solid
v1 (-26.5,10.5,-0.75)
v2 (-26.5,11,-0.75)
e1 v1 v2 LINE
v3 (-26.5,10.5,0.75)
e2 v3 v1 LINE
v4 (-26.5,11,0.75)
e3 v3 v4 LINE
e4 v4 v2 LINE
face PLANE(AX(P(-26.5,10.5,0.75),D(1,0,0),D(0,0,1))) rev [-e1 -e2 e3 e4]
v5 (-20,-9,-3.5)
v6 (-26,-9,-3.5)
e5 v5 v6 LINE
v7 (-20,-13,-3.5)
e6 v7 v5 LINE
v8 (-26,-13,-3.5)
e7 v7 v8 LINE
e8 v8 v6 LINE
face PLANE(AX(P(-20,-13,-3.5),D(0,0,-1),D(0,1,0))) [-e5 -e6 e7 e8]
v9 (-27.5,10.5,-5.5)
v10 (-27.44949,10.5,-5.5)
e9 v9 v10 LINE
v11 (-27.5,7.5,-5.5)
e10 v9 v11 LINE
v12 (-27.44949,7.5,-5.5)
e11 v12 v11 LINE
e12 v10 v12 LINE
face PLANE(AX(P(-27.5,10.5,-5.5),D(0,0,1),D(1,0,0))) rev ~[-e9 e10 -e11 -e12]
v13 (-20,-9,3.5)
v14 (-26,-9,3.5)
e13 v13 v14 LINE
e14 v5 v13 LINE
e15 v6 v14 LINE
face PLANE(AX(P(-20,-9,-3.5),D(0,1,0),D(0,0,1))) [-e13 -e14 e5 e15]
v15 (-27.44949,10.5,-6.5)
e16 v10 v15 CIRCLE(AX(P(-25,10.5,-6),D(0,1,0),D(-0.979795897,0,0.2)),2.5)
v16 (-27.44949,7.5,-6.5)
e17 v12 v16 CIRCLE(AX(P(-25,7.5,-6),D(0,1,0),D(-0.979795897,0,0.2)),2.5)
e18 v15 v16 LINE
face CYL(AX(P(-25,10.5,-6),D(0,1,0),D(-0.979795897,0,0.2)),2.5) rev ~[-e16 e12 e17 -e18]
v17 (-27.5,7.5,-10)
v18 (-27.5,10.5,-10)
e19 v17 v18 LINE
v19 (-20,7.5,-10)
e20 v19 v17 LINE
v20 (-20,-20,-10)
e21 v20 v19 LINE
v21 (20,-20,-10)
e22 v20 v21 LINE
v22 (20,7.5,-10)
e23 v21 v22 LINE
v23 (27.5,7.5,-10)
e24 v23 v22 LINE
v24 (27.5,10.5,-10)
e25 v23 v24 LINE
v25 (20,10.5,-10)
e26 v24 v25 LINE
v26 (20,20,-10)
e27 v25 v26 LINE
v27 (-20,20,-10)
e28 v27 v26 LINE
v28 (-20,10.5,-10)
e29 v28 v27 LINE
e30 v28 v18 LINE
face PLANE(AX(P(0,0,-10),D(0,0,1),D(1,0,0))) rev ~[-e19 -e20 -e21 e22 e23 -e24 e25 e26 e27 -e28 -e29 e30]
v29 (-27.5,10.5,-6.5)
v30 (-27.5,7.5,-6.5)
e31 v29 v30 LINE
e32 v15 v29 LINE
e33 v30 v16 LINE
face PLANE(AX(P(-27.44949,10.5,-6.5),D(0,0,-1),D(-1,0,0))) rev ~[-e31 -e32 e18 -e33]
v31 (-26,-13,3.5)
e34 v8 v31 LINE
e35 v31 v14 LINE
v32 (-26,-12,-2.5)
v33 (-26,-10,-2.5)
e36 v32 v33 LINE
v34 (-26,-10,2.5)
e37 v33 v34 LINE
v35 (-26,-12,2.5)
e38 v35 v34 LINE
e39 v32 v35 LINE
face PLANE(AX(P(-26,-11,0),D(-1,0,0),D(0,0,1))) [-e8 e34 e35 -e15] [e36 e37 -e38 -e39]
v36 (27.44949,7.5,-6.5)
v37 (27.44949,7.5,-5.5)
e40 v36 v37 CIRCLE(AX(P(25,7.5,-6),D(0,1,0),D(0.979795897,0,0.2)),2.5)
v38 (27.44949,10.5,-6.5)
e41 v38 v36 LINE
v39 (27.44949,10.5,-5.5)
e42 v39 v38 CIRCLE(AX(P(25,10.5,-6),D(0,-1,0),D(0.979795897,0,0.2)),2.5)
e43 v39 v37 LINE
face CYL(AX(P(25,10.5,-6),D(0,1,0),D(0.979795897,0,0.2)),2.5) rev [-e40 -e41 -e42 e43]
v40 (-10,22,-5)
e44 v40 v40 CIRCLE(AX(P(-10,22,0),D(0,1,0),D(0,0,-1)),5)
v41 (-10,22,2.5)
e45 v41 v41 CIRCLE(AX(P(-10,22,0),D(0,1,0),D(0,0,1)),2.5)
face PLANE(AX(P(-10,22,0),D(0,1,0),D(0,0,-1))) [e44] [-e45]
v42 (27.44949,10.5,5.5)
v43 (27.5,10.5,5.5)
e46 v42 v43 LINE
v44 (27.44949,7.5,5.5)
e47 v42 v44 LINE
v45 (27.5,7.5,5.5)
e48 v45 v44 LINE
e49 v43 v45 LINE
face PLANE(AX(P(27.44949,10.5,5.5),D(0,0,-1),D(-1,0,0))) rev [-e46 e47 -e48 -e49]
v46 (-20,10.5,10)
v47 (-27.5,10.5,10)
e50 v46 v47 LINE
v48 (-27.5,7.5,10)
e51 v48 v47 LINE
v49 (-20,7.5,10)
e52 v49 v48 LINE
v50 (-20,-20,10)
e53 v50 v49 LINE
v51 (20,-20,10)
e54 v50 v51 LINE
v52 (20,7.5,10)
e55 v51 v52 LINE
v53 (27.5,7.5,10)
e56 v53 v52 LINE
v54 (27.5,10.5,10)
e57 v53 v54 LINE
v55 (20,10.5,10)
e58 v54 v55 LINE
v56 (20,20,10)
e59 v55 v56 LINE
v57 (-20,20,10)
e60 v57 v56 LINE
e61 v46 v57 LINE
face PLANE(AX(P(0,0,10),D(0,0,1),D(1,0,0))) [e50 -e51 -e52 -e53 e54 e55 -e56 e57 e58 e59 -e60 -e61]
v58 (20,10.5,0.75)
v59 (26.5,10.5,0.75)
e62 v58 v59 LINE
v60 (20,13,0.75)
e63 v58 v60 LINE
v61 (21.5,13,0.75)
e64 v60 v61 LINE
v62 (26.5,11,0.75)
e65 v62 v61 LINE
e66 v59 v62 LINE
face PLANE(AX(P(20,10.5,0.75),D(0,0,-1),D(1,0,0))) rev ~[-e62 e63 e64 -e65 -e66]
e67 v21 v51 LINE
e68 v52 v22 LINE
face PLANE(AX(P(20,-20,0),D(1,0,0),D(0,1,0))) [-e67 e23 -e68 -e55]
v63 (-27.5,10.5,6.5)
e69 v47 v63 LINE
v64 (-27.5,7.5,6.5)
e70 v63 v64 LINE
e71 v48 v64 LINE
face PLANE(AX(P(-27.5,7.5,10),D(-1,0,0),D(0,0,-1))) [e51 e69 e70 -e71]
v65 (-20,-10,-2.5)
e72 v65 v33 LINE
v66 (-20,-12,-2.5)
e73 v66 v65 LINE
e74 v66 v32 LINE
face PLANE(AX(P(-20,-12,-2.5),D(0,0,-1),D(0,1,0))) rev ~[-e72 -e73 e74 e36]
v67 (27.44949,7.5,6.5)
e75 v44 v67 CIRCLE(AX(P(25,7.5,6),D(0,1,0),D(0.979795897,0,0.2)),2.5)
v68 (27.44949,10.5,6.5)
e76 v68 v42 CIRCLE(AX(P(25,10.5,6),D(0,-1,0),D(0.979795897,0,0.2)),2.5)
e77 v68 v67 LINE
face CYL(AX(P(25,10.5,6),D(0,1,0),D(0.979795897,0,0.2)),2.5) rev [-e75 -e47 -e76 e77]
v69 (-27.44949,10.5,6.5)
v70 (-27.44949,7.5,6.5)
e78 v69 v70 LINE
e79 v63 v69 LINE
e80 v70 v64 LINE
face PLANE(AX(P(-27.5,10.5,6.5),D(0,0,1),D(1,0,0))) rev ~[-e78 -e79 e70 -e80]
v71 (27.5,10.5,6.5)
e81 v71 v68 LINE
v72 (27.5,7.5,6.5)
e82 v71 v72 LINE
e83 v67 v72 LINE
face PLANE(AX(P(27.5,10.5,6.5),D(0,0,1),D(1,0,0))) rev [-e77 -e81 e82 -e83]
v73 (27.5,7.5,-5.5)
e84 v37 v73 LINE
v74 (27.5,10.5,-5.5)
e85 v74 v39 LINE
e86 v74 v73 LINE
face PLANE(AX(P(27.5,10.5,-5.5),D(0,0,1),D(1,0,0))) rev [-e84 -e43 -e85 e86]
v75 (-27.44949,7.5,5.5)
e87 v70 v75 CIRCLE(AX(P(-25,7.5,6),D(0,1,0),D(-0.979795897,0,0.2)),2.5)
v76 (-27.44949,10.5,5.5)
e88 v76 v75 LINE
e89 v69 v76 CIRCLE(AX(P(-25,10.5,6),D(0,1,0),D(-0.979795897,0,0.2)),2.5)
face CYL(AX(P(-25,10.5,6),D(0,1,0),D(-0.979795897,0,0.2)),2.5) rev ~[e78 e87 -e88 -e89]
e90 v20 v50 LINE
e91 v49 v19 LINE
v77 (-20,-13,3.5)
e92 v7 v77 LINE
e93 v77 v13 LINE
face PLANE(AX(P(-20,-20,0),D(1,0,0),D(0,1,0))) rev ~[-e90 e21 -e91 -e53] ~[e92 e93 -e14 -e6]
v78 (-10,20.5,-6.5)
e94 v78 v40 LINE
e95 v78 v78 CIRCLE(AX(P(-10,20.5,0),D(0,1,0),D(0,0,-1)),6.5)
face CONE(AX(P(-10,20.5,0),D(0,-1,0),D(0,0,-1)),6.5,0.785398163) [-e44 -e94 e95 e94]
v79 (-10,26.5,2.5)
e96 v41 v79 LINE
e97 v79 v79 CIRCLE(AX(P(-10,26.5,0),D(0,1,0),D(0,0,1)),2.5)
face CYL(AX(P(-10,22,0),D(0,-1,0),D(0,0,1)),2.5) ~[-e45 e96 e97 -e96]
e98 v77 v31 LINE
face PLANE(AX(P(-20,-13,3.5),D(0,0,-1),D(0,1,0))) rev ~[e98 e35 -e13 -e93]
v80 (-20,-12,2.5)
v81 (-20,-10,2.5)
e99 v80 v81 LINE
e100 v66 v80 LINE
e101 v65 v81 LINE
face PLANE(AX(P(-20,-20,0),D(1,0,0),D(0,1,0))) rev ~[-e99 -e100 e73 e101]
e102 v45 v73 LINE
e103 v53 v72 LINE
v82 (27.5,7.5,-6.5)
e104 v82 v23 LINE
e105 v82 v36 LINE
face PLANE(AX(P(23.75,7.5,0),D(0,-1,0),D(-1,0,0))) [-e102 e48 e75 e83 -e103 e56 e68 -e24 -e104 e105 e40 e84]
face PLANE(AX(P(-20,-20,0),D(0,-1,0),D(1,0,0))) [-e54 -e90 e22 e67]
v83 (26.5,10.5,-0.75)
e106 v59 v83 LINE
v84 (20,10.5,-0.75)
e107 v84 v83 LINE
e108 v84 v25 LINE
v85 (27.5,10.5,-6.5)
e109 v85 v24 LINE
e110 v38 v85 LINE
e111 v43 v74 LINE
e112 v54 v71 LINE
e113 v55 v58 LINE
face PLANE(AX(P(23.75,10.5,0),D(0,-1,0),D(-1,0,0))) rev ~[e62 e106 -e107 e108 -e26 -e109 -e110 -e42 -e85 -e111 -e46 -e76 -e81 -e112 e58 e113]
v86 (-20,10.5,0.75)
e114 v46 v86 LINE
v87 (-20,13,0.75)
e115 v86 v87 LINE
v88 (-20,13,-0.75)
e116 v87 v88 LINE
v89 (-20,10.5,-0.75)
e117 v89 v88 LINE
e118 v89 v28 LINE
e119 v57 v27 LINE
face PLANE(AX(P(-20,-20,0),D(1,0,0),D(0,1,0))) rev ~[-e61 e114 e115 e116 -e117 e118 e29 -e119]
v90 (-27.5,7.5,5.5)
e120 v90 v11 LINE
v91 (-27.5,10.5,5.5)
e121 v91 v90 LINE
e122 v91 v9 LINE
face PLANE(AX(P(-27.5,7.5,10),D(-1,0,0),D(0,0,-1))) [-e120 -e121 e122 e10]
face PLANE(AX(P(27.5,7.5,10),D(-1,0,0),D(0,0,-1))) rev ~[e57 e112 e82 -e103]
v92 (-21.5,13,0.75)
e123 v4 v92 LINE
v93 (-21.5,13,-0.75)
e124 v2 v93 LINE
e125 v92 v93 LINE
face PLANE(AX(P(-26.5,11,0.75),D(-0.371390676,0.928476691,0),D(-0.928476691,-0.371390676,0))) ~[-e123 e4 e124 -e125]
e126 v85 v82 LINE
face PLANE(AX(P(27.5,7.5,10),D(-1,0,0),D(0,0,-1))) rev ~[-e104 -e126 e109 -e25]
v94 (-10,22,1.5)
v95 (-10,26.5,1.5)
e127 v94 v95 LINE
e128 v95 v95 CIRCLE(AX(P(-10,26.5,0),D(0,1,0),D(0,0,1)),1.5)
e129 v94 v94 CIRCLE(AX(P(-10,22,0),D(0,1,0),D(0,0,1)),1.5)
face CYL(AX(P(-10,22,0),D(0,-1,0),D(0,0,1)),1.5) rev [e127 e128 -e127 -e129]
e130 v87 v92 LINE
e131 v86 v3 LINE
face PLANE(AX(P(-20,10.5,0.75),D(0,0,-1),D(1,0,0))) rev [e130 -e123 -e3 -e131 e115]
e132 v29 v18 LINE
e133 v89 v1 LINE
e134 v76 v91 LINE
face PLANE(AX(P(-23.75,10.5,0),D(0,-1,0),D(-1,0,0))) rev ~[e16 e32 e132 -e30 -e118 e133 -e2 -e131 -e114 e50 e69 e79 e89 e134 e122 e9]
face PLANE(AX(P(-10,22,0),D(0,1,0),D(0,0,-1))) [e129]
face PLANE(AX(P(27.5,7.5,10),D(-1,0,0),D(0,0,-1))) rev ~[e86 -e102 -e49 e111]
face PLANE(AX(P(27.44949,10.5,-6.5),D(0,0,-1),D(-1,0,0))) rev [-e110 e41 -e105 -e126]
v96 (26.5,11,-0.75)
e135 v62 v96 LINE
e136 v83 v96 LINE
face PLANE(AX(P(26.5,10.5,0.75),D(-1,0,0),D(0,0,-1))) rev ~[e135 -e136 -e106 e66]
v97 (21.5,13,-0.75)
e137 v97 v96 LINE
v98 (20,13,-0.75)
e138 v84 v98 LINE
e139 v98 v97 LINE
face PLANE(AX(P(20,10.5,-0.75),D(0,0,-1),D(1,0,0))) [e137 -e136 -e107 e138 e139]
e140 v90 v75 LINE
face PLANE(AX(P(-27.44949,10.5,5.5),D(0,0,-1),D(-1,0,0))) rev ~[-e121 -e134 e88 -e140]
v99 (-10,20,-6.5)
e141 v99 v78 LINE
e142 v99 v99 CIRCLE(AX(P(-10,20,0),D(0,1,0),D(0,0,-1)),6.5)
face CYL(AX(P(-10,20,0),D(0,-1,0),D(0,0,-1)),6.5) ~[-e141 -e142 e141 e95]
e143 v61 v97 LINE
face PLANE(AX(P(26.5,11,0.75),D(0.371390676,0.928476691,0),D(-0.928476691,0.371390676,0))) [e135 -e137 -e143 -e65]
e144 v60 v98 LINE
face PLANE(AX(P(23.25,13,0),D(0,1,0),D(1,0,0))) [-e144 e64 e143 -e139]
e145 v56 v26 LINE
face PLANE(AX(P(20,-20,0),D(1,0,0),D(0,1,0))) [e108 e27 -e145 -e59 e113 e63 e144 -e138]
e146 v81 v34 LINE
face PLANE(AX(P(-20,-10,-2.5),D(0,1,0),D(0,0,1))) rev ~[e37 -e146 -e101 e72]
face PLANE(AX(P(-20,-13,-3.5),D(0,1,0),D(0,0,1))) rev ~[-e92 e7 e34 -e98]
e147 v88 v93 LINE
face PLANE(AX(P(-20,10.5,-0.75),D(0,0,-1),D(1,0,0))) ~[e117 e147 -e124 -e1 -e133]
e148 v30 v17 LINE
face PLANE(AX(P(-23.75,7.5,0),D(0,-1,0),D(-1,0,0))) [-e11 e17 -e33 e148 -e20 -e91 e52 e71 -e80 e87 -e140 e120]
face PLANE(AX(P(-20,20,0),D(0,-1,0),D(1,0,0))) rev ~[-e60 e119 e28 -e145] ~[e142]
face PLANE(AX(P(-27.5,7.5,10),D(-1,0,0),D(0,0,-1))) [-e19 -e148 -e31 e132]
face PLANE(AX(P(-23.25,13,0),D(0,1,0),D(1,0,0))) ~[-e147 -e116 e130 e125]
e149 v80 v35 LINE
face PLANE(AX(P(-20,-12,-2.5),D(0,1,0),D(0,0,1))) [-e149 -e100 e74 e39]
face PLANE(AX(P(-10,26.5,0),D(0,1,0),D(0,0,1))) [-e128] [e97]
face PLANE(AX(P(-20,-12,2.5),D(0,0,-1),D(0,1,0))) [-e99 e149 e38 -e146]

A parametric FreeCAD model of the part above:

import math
import FreeCAD as App
import Part
import Sketcher
from FreeCAD import Vector
Q = App.Units.Quantity


def edges_at(feature, points):
    """Names of the edges that pass closest to the given points."""
    edges = feature.Shape.Edges
    near = lambda p: min(range(len(edges)), key=lambda i: edges[i].distToShape(Part.Vertex(*p))[0])
    return sorted({f"Edge{near(p) + 1}" for p in points})


def add_polygon(sketch, points):
    """Adds a closed chain of lines whose ends are joined by coincident constraints."""
    first, n = sketch.GeometryCount, len(points)
    for a, b in zip(points, points[1:] + points[:1]):
        sketch.addGeometry(Part.LineSegment(App.Vector(*a, 0), App.Vector(*b, 0)), False)
    for i in range(n):
        sketch.addConstraint(Sketcher.Constraint("Coincident", first + i, 2, first + (i + 1) % n, 1))

doc = App.newDocument("Part")
body = doc.addObject("PartDesign::Body", "Body")

sketch1 = body.newObject("Sketcher::SketchObject", "Sketch")
sketch1.AttachmentSupport = (doc.getObject("XY_Plane"), [""])
sketch1.MapMode = "FlatFace"
add_polygon(sketch1, [(-20, 20), (-20, -20), (20, -20), (20, 20)])
sketch1.addConstraint([
    Sketcher.Constraint("Vertical", 0),
    Sketcher.Constraint("Horizontal", 1),
    Sketcher.Constraint("Vertical", 2),
    Sketcher.Constraint("Horizontal", 3),
    Sketcher.Constraint("Symmetric", 0, 2, 2, 2, -1, 1),
    Sketcher.Constraint("Equal", 3, 0),
    Sketcher.Constraint("DistanceX", 1, 1, 1, 2, Q("40 mm")),
])
pad1 = body.newObject("PartDesign::Pad", "Pad")
pad1.Profile = sketch1
pad1.Length = 20
pad1.Midplane = True

sketch2 = body.newObject("Sketcher::SketchObject", "Sketch001")
sketch2.AttachmentSupport = (doc.getObject("XZ_Plane"), [""])
sketch2.MapMode = "FlatFace"
sketch2.AttachmentOffset = App.Placement(Vector(0, 0, -20), App.Rotation())
sketch2.addGeometry(Part.Circle(Vector(-10, 0, 0), Vector(0, 0, 1), 6), False)
sketch2.addConstraint([
    Sketcher.Constraint("PointOnObject", 0, 3, -1),
    Sketcher.Constraint("Diameter", 0, Q("13 mm")),
    Sketcher.Constraint("DistanceX", 0, 3, -1, 1, Q("10 mm")),
])
pad2 = body.newObject("PartDesign::Pad", "Pad001")
pad2.Profile = sketch2
pad2.Length = 2
pad2.Reversed = True

sketch3 = body.newObject("Sketcher::SketchObject", "Sketch002")
sketch3.AttachmentSupport = (doc.getObject("XZ_Plane"), [""])
sketch3.MapMode = "FlatFace"
sketch3.AttachmentOffset = App.Placement(Vector(0, 0, -7.5), App.Rotation())
add_polygon(sketch3, [(-20, -10), (-20, 10), (-28, 10), (-28, -10)])
add_polygon(sketch3, [(28, -10), (28, 10), (20, 10), (20, -10)])
sketch3.addConstraint([
    Sketcher.Constraint("Vertical", 0),
    Sketcher.Constraint("Horizontal", 1),
    Sketcher.Constraint("Vertical", 2),
    Sketcher.Constraint("Horizontal", 3),
    Sketcher.Constraint("Vertical", 4),
    Sketcher.Constraint("Horizontal", 5),
    Sketcher.Constraint("Vertical", 6),
    Sketcher.Constraint("Horizontal", 7),
    Sketcher.Constraint("Symmetric", 2, 2, 4, 2, -1, 1),
    Sketcher.Constraint("Symmetric", 0, 2, 6, 2, -1, 1),
    Sketcher.Constraint("Horizontal", 1, 2, 4, 2),
    Sketcher.Constraint("DistanceY", 0, 1, 0, 2, Q("20 mm")),
    Sketcher.Constraint("DistanceX", 1, 2, 1, 1, Q("7.5 mm")),
    Sketcher.Constraint("DistanceX", 0, 2, -1, 1, Q("20 mm")),
])
pad3 = body.newObject("PartDesign::Pad", "Pad002")
pad3.Profile = sketch3
pad3.Length = 3
pad3.Reversed = True

sketch4 = body.newObject("Sketcher::SketchObject", "Sketch003")
sketch4.AttachmentSupport = (doc.getObject("XZ_Plane"), [""])
sketch4.MapMode = "FlatFace"
sketch4.AttachmentOffset = App.Placement(Vector(0, 0, -10.5), App.Rotation())
add_polygon(sketch4, [(20, -0.8), (20, 0.8), (26.5, 0.8), (26.5, -0.8)])
sketch4.addConstraint([
    Sketcher.Constraint("Vertical", 0),
    Sketcher.Constraint("Horizontal", 1),
    Sketcher.Constraint("Vertical", 2),
    Sketcher.Constraint("Horizontal", 3),
    Sketcher.Constraint("DistanceX", 1, 1, 1, 2, Q("6.5 mm")),
    Sketcher.Constraint("DistanceY", 0, 1, 0, 2, Q("1.5 mm")),
    Sketcher.Constraint("DistanceX", -1, 1, 0, 2, Q("20 mm")),
    Sketcher.Constraint("DistanceY", -1, 1, 0, 2, Q("0.75 mm")),
])
pad4 = body.newObject("PartDesign::Pad", "Pad003")
pad4.Profile = sketch4
pad4.Length = 2.5
pad4.Reversed = True

sketch5 = body.newObject("Sketcher::SketchObject", "Sketch004")
sketch5.AttachmentSupport = (doc.getObject("XY_Plane"), [""])
sketch5.MapMode = "FlatFace"
sketch5.AttachmentOffset = App.Placement(Vector(0, 0, 0.75), App.Rotation())
add_polygon(sketch5, [(21.5, 13), (26.5, 11), (26.5, 13)])
sketch5.addConstraint([
    Sketcher.Constraint("Vertical", 1),
    Sketcher.Constraint("Horizontal", 2),
    Sketcher.Constraint("DistanceX", 2, 2, 2, 1, Q("5 mm")),
    Sketcher.Constraint("DistanceY", 1, 1, 1, 2, Q("2 mm")),
    Sketcher.Constraint("DistanceY", -1, 1, 0, 2, Q("11 mm")),
    Sketcher.Constraint("DistanceX", -1, 1, 0, 2, Q("26.5 mm")),
])
pocket1 = body.newObject("PartDesign::Pocket", "Pocket")
pocket1.Profile = sketch5
pocket1.Length = 2.5

sketch6 = body.newObject("Sketcher::SketchObject", "Sketch005")
sketch6.AttachmentSupport = (doc.getObject("XZ_Plane"), [""])
sketch6.MapMode = "FlatFace"
sketch6.AttachmentOffset = App.Placement(Vector(0, 0, -10.5), App.Rotation())
sketch6.addGeometry([
    Part.LineSegment(Vector(-27.45, -6.5, 0), Vector(-27.5, -6.5, 0)),
    Part.LineSegment(Vector(-27.5, -6.5, 0), Vector(-27.5, -5.5, 0)),
    Part.LineSegment(Vector(-27.5, -5.5, 0), Vector(-27.45, -5.5, 0)),
    Part.ArcOfCircle(Part.Circle(Vector(-25, -6, 0), Vector(0, 0, 1), 2.5), math.radians(-168), math.radians(168)),
    Part.LineSegment(Vector(-27.45, 5.5, 0), Vector(-27.5, 5.5, 0)),
    Part.LineSegment(Vector(-27.5, 5.5, 0), Vector(-27.5, 6.5, 0)),
    Part.LineSegment(Vector(-27.5, 6.5, 0), Vector(-27.45, 6.5, 0)),
    Part.ArcOfCircle(Part.Circle(Vector(-25, 6, 0), Vector(0, 0, 1), 2.5), math.radians(-168), math.radians(168)),
], False)
sketch6.addConstraint([
    Sketcher.Constraint("Coincident", 0, 2, 1, 1),
    Sketcher.Constraint("Coincident", 1, 2, 2, 1),
    Sketcher.Constraint("Coincident", 2, 2, 3, 2),
    Sketcher.Constraint("Coincident", 3, 1, 0, 1),
    Sketcher.Constraint("Coincident", 4, 2, 5, 1),
    Sketcher.Constraint("Coincident", 5, 2, 6, 1),
    Sketcher.Constraint("Coincident", 6, 2, 7, 2),
    Sketcher.Constraint("Coincident", 7, 1, 4, 1),
    Sketcher.Constraint("Horizontal", 0),
    Sketcher.Constraint("Vertical", 1),
    Sketcher.Constraint("Horizontal", 2),
    Sketcher.Constraint("Horizontal", 4),
    Sketcher.Constraint("Vertical", 5),
    Sketcher.Constraint("Horizontal", 6),
    Sketcher.Constraint("Equal", 3, 7),
    Sketcher.Constraint("Symmetric", 3, 3, 7, 3, -1),
    Sketcher.Constraint("Symmetric", 1, 2, 4, 2, -1),
    Sketcher.Constraint("Vertical", 2, 2, 3, 1),
    Sketcher.Constraint("Vertical", 3, 1, 6, 2),
    Sketcher.Constraint("Radius", 3, Q("2.5 mm")),
    Sketcher.Constraint("DistanceY", 1, 1, 1, 2, Q("1 mm")),
    Sketcher.Constraint("DistanceX", 3, 3, -1, 1, Q("25 mm")),
    Sketcher.Constraint("DistanceY", 3, 3, -1, 1, Q("6 mm")),
    Sketcher.Constraint("DistanceX", 0, 2, -1, 1, Q("27.5 mm")),
])
pocket2 = body.newObject("PartDesign::Pocket", "Pocket001")
pocket2.Profile = sketch6
pocket2.Length = 12.5
pocket2.Reversed = True
doc.recompute()

mirrored = body.newObject("PartDesign::Mirrored", "Mirrored")
mirrored.Originals = [pad4, pocket1, pocket2]
mirrored.MirrorPlane = (doc.getObject("YZ_Plane"), [""])
body.Tip = mirrored
doc.recompute()

chamfer = body.newObject("PartDesign::Chamfer", "Chamfer")
chamfer.Base = (mirrored, edges_at(mirrored, [(-10, 22, 6.5)]))
chamfer.Size = 1.5

sketch7 = body.newObject("Sketcher::SketchObject", "Sketch006")
sketch7.AttachmentSupport = (doc.getObject("YZ_Plane"), [""])
sketch7.MapMode = "FlatFace"
sketch7.AttachmentOffset = App.Placement(Vector(0, 0, -20), App.Rotation())
add_polygon(sketch7, [(-9, -3.5), (-13, -3.5), (-13, 3.5), (-9, 3.5)])
add_polygon(sketch7, [(-12, 2.5), (-12, -2.5), (-10, -2.5), (-10, 2.5)])
sketch7.addConstraint([
    Sketcher.Constraint("Horizontal", 0),
    Sketcher.Constraint("Vertical", 1),
    Sketcher.Constraint("Horizontal", 2),
    Sketcher.Constraint("Vertical", 3),
    Sketcher.Constraint("Vertical", 4),
    Sketcher.Constraint("Horizontal", 5),
    Sketcher.Constraint("Vertical", 6),
    Sketcher.Constraint("Horizontal", 7),
    Sketcher.Constraint("DistanceX", 0, 2, 0, 1, Q("4 mm")),
    Sketcher.Constraint("DistanceX", 5, 1, 5, 2, Q("2 mm")),
    Sketcher.Constraint("DistanceY", 1, 1, 1, 2, Q("7 mm")),
    Sketcher.Constraint("DistanceY", 4, 2, 4, 1, Q("5 mm")),
    Sketcher.Constraint("DistanceX", 0, 2, -1, 1, Q("13 mm")),
    Sketcher.Constraint("DistanceX", 4, 2, -1, 1, Q("12 mm")),
    Sketcher.Constraint("DistanceY", 0, 2, 4, 2, Q("1 mm")),
    Sketcher.Constraint("DistanceY", 0, 2, -1, 1, Q("3.5 mm")),
])
pad5 = body.newObject("PartDesign::Pad", "Pad004")
pad5.Profile = sketch7
pad5.Length = 6
pad5.Reversed = True

sketch8 = body.newObject("Sketcher::SketchObject", "Sketch007")
sketch8.AttachmentSupport = (doc.getObject("XZ_Plane"), [""])
sketch8.MapMode = "FlatFace"
sketch8.AttachmentOffset = App.Placement(Vector(0, 0, -22), App.Rotation())
sketch8.addGeometry([
    Part.Circle(Vector(-10, 0, 0), Vector(0, 0, 1), 2.5),
    Part.Circle(Vector(-10, 0, 0), Vector(0, 0, 1), 1.5),
], False)
sketch8.addConstraint([
    Sketcher.Constraint("Coincident", 1, 3, 0, 3),
    Sketcher.Constraint("PointOnObject", 0, 3, -1),
    Sketcher.Constraint("Diameter", 0, Q("5 mm")),
    Sketcher.Constraint("Diameter", 1, Q("3 mm")),
    Sketcher.Constraint("DistanceX", 0, 3, -1, 1, Q("10 mm")),
])
pad6 = body.newObject("PartDesign::Pad", "Pad005")
pad6.Profile = sketch8
pad6.Length = 4.5
pad6.Reversed = True

doc.recompute()
